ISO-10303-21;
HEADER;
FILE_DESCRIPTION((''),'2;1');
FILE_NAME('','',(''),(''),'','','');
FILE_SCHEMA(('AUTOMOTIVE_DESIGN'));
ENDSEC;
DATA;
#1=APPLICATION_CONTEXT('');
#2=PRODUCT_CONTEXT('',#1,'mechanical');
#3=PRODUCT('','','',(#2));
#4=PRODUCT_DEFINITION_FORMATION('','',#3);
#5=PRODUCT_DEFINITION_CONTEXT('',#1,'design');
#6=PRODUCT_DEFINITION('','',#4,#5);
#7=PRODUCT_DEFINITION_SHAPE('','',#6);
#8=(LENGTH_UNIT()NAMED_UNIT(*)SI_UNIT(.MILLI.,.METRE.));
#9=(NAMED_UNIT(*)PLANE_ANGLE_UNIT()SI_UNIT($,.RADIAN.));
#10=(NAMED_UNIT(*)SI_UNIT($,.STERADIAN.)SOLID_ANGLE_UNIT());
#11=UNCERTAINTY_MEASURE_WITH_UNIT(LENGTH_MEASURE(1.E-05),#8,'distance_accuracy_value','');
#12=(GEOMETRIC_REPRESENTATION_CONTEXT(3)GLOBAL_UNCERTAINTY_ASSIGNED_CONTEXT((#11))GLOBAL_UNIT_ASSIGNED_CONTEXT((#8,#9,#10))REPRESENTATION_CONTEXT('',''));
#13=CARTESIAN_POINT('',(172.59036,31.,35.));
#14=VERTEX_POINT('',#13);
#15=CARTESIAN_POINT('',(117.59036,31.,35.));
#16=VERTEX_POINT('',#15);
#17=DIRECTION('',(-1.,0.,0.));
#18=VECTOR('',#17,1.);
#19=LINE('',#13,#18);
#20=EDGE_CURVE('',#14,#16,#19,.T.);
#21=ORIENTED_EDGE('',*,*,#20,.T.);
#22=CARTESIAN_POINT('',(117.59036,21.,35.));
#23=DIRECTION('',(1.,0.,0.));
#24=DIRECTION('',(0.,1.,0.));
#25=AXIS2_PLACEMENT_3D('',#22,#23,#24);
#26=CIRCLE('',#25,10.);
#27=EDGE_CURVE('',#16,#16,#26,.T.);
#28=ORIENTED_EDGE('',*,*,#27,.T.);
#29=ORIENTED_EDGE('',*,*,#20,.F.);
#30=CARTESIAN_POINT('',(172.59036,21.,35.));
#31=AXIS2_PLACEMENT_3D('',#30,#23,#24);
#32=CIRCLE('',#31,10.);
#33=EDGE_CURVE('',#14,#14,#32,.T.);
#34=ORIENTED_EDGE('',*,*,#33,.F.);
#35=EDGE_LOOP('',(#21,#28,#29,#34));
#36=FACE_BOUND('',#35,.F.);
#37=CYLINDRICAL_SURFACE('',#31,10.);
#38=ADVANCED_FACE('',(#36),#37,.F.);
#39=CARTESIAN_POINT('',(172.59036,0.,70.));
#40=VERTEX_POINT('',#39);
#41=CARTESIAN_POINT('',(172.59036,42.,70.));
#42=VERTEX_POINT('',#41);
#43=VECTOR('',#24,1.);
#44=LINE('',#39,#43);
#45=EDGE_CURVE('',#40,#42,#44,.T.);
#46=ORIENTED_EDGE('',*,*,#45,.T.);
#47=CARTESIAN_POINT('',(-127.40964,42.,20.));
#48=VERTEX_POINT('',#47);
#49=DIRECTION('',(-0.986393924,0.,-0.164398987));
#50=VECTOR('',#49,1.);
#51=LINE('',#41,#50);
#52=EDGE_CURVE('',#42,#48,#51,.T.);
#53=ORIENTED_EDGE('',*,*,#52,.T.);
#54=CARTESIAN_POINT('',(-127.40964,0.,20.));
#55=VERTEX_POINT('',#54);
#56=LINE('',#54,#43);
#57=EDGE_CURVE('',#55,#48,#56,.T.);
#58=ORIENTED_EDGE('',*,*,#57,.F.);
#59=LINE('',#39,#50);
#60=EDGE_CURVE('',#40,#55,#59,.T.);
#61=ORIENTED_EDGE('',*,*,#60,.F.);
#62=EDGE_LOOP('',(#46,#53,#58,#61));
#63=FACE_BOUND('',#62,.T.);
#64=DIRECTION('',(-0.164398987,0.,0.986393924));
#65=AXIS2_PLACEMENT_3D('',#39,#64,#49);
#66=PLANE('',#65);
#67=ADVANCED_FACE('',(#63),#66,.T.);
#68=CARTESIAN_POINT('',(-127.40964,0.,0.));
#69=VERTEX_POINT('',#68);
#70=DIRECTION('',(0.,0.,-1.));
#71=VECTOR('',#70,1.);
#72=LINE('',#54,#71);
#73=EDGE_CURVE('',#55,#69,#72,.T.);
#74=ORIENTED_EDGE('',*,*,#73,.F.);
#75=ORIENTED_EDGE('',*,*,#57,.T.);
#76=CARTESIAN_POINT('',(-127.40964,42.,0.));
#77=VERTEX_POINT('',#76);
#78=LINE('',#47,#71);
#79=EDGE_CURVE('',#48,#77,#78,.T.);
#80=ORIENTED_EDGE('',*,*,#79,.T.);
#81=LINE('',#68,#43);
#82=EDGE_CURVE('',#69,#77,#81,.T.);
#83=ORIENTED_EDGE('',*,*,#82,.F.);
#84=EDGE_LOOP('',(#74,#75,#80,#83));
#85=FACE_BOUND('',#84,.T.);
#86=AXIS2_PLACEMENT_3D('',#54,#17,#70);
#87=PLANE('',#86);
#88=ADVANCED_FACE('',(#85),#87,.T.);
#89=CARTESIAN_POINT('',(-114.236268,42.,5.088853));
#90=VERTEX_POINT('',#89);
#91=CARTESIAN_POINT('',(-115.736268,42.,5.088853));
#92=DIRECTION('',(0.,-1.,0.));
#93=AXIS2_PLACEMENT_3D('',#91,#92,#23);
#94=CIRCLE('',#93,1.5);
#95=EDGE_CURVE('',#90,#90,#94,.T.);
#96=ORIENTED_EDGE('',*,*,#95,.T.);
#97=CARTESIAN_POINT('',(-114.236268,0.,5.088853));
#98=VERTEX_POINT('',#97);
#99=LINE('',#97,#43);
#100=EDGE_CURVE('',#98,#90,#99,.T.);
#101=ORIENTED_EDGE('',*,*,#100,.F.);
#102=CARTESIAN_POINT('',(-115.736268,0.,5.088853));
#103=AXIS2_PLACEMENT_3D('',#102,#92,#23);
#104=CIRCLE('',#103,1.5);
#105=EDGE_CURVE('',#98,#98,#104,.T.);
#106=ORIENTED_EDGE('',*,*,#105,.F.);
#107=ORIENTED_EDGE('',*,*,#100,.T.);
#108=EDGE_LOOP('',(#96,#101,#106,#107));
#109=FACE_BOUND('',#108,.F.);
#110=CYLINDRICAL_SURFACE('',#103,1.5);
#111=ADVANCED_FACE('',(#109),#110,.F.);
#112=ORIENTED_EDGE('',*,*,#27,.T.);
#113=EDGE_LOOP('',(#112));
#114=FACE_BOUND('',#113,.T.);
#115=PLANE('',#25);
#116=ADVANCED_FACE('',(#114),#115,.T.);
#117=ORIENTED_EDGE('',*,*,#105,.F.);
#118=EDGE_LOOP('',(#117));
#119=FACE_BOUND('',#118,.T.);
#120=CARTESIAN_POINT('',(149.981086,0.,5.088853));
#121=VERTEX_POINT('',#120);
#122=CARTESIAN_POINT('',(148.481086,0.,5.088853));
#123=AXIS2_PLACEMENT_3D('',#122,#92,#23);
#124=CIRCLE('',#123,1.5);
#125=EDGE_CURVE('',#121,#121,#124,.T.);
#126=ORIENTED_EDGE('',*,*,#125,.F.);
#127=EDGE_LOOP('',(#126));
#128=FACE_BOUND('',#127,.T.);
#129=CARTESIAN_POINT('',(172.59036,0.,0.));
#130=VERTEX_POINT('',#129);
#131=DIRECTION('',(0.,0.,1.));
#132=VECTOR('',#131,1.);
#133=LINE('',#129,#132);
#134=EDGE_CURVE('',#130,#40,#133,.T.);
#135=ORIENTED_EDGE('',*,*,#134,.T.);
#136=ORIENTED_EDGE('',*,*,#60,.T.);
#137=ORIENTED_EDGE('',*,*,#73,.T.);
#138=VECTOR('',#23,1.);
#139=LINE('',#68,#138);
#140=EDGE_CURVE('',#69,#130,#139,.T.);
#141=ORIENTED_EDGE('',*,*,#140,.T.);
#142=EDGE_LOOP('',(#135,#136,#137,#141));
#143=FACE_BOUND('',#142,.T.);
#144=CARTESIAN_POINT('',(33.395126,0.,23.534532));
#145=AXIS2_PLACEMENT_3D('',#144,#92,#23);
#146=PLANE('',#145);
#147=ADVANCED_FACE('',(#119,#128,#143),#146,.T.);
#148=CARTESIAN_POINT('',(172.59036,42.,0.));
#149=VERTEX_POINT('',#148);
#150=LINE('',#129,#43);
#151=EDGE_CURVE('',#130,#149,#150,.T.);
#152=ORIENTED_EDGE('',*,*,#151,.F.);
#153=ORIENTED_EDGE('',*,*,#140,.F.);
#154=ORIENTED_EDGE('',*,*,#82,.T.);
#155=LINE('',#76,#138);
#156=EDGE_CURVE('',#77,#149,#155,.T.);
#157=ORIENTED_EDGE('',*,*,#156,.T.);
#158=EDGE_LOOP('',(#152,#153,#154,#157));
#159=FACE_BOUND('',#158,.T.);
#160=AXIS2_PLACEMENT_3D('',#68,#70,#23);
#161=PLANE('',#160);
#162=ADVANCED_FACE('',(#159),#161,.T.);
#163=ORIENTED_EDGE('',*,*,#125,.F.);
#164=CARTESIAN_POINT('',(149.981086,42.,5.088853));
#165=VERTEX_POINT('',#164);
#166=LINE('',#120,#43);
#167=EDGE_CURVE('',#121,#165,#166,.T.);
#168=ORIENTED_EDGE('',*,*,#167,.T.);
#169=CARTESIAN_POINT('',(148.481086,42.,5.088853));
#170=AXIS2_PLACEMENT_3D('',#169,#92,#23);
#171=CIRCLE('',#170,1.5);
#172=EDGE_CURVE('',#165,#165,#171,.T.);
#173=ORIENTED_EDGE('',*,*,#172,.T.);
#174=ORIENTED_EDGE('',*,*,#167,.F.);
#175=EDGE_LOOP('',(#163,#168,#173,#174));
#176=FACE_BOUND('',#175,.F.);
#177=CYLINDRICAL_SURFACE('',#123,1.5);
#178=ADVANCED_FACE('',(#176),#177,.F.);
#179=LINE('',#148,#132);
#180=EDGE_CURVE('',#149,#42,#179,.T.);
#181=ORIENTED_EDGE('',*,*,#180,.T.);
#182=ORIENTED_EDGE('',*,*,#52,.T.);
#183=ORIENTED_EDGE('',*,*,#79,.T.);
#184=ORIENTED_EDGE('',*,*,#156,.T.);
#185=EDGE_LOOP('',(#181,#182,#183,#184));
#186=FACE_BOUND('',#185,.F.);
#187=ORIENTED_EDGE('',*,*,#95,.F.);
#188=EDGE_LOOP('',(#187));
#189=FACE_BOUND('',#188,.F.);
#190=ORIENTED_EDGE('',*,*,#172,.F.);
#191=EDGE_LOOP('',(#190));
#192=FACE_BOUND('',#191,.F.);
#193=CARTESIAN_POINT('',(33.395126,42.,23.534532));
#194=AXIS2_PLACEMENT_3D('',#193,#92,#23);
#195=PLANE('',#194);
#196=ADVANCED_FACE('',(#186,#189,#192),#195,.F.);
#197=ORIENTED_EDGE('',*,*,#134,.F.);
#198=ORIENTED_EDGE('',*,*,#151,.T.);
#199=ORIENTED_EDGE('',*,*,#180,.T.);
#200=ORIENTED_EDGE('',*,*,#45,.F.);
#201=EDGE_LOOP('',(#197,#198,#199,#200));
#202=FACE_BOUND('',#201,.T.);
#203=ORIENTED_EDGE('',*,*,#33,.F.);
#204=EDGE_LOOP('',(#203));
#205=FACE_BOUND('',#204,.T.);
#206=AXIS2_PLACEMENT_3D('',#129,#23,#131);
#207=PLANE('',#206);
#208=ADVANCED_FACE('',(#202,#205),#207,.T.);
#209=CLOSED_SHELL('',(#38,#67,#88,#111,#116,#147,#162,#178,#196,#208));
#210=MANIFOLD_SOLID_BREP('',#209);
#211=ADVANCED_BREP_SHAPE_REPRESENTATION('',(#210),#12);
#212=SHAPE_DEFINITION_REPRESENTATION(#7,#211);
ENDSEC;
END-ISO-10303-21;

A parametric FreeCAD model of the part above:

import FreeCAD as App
import Part
import Sketcher

V = App.Vector
Q = App.Units.Quantity

doc = App.newDocument("Part")
body = doc.addObject("PartDesign::Body", "Body")

sketch1 = doc.addObject("Sketcher::SketchObject", "Sketch")
body.addObject(sketch1)
sketch1.AttachmentSupport = (doc.XZ_Plane, [""])
sketch1.MapMode = "FlatFace"
sketch1.addGeometry(Part.LineSegment(V(-127, 0, 0), V(173, 0, 0)), False)
sketch1.addGeometry(Part.LineSegment(V(173, 0, 0), V(173, 70, 0)), False)
sketch1.addGeometry(Part.LineSegment(V(173, 70, 0), V(-127, 20, 0)), False)
sketch1.addGeometry(Part.LineSegment(V(-127, 20, 0), V(-127, 0, 0)), False)
sketch1.addConstraint(Sketcher.Constraint("Coincident", 0, 2, 1, 1))
sketch1.addConstraint(Sketcher.Constraint("Coincident", 1, 2, 2, 1))
sketch1.addConstraint(Sketcher.Constraint("Coincident", 2, 2, 3, 1))
sketch1.addConstraint(Sketcher.Constraint("Coincident", 3, 2, 0, 1))
sketch1.addConstraint(Sketcher.Constraint("Horizontal", 0))
sketch1.addConstraint(Sketcher.Constraint("Vertical", 1))
sketch1.addConstraint(Sketcher.Constraint("Vertical", 3))
sketch1.addConstraint(Sketcher.Constraint("PointOnObject", 0, 2, -1))
sketch1.addConstraint(Sketcher.Constraint("DistanceX", 0, 1, 0, 2, Q("300 mm")))
sketch1.addConstraint(Sketcher.Constraint("DistanceY", 1, 1, 1, 2, Q("70 mm")))
sketch1.addConstraint(Sketcher.Constraint("DistanceY", 3, 2, 3, 1, Q("20 mm")))
sketch1.addConstraint(Sketcher.Constraint("DistanceX", -1, 1, 0, 2, Q("172.59036 mm")))
pad1 = doc.addObject("PartDesign::Pad", "Pad")
body.addObject(pad1)
pad1.Profile = sketch1
pad1.Length = 42
pad1.Reversed = True

sketch2 = doc.addObject("Sketcher::SketchObject", "Sketch001")
body.addObject(sketch2)
sketch2.AttachmentSupport = (doc.YZ_Plane, [""])
sketch2.MapMode = "FlatFace"
sketch2.AttachmentOffset = App.Placement(V(0, 0, 172.59036), App.Rotation())
sketch2.addGeometry(Part.Circle(V(21, 35, 0), V(0, 0, 1), 10), False)
sketch2.addConstraint(Sketcher.Constraint("Diameter", 0, Q("20 mm")))
sketch2.addConstraint(Sketcher.Constraint("DistanceX", -1, 1, 0, 3, Q("21 mm")))
sketch2.addConstraint(Sketcher.Constraint("DistanceY", -1, 1, 0, 3, Q("35 mm")))
pocket1 = doc.addObject("PartDesign::Pocket", "Pocket")
body.addObject(pocket1)
pocket1.Profile = sketch2
pocket1.Length = 55

sketch3 = doc.addObject("Sketcher::SketchObject", "Sketch002")
body.addObject(sketch3)
sketch3.AttachmentSupport = (doc.XZ_Plane, [""])
sketch3.MapMode = "FlatFace"
sketch3.addGeometry(Part.Circle(V(-115.7, 5.1, 0), V(0, 0, 1), 1.5), False)
sketch3.addGeometry(Part.Circle(V(148.5, 5.1, 0), V(0, 0, 1), 1.5), False)
sketch3.addConstraint(Sketcher.Constraint("Equal", 0, 1))
sketch3.addConstraint(Sketcher.Constraint("Horizontal", 0, 3, 1, 3))
sketch3.addConstraint(Sketcher.Constraint("Diameter", 0, Q("3 mm")))
sketch3.addConstraint(Sketcher.Constraint("DistanceX", 0, 3, -1, 1, Q("115.736268 mm")))
sketch3.addConstraint(Sketcher.Constraint("DistanceY", -1, 1, 0, 3, Q("5.088853 mm")))
sketch3.addConstraint(Sketcher.Constraint("DistanceX", -1, 1, 1, 3, Q("148.481086 mm")))
pocket2 = doc.addObject("PartDesign::Pocket", "Pocket001")
body.addObject(pocket2)
pocket2.Profile = sketch3
pocket2.Length = 197.5

doc.recompute()
